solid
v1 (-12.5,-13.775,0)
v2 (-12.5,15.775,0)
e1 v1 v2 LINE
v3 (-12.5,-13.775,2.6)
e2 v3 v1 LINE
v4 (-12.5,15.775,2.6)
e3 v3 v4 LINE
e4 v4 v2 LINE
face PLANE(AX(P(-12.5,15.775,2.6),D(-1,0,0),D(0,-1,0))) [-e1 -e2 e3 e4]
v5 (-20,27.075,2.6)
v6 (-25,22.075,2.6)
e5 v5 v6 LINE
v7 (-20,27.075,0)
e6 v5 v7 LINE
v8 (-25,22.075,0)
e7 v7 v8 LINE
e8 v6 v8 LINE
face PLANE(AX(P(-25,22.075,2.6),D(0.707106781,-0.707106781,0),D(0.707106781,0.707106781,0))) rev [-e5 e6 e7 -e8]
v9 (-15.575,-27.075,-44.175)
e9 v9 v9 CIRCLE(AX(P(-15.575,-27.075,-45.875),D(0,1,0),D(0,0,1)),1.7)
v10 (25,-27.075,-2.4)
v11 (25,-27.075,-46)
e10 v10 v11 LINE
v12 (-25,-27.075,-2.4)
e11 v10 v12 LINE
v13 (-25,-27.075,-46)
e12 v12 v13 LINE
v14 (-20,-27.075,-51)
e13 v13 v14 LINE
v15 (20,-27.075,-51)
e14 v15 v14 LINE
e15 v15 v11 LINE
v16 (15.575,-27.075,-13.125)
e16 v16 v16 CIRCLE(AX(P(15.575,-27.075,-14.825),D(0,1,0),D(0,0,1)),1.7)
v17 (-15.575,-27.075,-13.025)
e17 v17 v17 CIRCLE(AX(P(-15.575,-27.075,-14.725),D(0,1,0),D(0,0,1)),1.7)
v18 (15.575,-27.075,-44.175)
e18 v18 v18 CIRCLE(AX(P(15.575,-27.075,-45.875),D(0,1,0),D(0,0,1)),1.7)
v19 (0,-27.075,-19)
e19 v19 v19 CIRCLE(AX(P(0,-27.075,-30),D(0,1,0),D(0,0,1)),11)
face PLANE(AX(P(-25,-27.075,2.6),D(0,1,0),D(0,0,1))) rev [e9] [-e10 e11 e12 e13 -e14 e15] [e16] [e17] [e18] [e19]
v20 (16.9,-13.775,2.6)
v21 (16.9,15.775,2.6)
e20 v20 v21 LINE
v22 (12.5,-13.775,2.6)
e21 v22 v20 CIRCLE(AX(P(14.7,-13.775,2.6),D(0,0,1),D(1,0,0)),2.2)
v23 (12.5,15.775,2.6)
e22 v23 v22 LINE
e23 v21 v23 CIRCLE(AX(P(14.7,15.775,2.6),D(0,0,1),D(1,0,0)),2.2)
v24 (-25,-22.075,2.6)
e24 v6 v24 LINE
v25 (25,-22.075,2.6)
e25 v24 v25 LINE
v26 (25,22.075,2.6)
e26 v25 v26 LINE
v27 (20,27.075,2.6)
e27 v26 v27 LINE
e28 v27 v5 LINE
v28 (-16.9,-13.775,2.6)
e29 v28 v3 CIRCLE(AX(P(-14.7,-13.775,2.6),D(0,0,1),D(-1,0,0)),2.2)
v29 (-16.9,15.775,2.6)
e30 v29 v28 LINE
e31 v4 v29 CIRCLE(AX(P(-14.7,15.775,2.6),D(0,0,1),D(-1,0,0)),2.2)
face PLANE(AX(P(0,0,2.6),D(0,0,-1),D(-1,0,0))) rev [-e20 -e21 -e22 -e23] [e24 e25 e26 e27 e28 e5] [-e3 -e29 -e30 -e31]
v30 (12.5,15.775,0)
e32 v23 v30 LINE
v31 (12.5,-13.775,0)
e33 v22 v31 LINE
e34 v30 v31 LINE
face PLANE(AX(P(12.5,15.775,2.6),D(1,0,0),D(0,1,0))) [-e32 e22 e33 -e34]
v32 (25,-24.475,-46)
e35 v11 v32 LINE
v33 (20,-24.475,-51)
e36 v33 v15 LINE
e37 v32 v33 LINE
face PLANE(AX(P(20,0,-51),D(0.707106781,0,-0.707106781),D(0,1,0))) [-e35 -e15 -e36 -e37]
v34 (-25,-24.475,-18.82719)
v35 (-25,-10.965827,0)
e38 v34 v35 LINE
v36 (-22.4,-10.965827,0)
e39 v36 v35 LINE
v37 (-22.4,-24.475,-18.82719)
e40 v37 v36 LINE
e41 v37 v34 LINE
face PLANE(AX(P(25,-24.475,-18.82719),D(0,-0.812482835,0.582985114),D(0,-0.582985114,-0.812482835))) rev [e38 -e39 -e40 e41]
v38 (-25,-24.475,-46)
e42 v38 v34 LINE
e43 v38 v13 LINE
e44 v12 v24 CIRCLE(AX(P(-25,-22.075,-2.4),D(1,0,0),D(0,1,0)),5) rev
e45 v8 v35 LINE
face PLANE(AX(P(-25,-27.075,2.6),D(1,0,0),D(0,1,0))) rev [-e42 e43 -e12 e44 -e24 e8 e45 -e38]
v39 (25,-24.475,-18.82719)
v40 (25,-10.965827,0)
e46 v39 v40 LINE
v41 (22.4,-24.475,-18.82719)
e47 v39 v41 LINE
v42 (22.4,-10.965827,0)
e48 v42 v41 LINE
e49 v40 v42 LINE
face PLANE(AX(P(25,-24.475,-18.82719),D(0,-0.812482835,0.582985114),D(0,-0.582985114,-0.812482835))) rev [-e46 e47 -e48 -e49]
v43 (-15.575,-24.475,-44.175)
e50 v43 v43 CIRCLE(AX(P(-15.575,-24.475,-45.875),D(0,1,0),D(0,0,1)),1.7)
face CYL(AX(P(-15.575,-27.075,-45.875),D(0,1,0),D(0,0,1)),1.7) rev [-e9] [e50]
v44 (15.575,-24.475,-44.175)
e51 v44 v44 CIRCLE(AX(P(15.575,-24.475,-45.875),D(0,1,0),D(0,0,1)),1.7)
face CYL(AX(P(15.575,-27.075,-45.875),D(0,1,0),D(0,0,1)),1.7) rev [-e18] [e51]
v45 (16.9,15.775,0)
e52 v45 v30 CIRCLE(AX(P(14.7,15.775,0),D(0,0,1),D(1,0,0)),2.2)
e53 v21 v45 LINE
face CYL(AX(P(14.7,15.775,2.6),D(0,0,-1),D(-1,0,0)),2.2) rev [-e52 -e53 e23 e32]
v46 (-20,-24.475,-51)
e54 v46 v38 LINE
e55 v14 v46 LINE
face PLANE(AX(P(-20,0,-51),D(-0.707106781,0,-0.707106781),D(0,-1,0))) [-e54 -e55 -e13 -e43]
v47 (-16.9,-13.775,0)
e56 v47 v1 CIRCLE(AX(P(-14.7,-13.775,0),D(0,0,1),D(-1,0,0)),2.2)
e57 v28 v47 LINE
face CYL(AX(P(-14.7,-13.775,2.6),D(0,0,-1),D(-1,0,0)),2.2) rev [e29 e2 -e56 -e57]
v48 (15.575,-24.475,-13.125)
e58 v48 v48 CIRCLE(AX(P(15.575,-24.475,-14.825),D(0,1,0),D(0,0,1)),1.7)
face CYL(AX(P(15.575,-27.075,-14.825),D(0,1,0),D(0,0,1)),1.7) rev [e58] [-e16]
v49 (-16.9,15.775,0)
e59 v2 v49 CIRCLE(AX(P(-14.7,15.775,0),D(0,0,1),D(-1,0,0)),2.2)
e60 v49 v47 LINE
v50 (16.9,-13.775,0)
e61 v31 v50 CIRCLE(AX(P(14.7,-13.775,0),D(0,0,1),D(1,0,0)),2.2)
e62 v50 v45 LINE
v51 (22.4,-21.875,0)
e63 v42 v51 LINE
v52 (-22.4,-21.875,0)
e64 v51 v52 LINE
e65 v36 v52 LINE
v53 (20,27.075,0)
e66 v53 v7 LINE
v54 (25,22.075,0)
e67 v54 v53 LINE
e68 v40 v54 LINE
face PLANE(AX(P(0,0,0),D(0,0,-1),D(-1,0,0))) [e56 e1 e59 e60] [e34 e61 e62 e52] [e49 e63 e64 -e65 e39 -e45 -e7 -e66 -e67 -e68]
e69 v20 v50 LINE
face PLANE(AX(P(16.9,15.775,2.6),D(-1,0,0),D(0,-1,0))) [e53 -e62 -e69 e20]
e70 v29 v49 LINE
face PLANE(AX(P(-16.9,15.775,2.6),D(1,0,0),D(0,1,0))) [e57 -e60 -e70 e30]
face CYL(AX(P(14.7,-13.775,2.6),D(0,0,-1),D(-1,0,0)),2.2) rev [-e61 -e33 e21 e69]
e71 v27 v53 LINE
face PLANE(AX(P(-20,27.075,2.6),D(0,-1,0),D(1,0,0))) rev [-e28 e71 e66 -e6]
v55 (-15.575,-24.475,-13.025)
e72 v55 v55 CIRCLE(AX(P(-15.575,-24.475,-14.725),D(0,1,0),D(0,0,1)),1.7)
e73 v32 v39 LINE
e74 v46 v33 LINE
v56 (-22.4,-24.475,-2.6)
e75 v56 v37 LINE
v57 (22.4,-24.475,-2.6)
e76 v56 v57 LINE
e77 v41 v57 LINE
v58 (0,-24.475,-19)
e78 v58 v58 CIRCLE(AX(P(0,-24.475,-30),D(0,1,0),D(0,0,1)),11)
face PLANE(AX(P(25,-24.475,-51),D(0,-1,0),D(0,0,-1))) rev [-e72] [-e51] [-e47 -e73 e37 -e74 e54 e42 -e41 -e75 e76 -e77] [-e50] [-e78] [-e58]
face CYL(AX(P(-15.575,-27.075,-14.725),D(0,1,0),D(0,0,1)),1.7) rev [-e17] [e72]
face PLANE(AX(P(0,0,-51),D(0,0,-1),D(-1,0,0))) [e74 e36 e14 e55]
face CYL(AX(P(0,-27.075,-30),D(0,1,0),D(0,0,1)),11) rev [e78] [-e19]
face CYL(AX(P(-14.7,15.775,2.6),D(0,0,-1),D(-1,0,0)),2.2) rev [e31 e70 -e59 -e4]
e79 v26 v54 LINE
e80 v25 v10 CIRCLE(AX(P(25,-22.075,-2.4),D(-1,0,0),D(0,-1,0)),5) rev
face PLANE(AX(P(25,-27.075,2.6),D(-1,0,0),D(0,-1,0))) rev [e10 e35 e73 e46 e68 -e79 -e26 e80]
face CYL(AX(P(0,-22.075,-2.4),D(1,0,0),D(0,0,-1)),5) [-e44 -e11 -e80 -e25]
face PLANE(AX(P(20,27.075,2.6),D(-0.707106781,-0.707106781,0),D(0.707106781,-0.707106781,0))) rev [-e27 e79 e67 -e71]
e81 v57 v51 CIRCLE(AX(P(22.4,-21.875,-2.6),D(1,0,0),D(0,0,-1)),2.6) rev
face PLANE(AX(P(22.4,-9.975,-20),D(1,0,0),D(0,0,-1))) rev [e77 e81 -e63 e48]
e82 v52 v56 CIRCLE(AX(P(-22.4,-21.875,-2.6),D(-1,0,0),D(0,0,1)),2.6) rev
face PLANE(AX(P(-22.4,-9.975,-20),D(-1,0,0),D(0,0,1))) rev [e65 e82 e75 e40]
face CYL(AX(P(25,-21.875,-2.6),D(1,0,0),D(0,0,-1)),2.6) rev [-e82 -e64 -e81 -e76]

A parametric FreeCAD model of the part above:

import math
import FreeCAD as App
import Part
import Sketcher

V = App.Vector
Q = App.Units.Quantity


def edges_at(feature, points):
    """Names of the edges that pass closest to the given points."""
    edges = feature.Shape.Edges
    near = lambda p: min(range(len(edges)), key=lambda i: edges[i].distToShape(Part.Vertex(*p))[0])
    return sorted({f"Edge{near(p) + 1}" for p in points})


def add_polygon(sketch, points):
    """Adds a closed chain of lines whose ends are joined by coincident constraints."""
    first, n = sketch.GeometryCount, len(points)
    for a, b in zip(points, points[1:] + points[:1]):
        sketch.addGeometry(Part.LineSegment(App.Vector(*a, 0), App.Vector(*b, 0)), False)
    for i in range(n):
        sketch.addConstraint(Sketcher.Constraint("Coincident", first + i, 2, first + (i + 1) % n, 1))

doc = App.newDocument("Part")
body = doc.addObject("PartDesign::Body", "Body")

sketch1 = doc.addObject("Sketcher::SketchObject", "Sketch")
body.addObject(sketch1)
sketch1.AttachmentSupport = (doc.XY_Plane, [""])
sketch1.MapMode = "FlatFace"
add_polygon(sketch1, [(-25, -27.075), (25, -27.075), (25, 22.075), (20, 27.075), (-20, 27.075), (-25, 22.075)])
sketch1.addGeometry(Part.LineSegment(V(-16.9, -13.775, 0), V(-16.9, 15.775, 0)), False)
sketch1.addGeometry(Part.ArcOfCircle(Part.Circle(V(-14.7, 15.775, 0), V(0, 0, 1), 2.2), math.radians(0), math.radians(180)), False)
sketch1.addGeometry(Part.LineSegment(V(-12.5, 15.775, 0), V(-12.5, -13.775, 0)), False)
sketch1.addGeometry(Part.ArcOfCircle(Part.Circle(V(-14.7, -13.775, 0), V(0, 0, 1), 2.2), math.radians(180), math.radians(360)), False)
sketch1.addGeometry(Part.ArcOfCircle(Part.Circle(V(14.7, 15.775, 0), V(0, 0, 1), 2.2), math.radians(0), math.radians(180)), False)
sketch1.addGeometry(Part.LineSegment(V(16.9, 15.775, 0), V(16.9, -13.775, 0)), False)
sketch1.addGeometry(Part.ArcOfCircle(Part.Circle(V(14.7, -13.775, 0), V(0, 0, 1), 2.2), math.radians(180), math.radians(360)), False)
sketch1.addGeometry(Part.LineSegment(V(12.5, -13.775, 0), V(12.5, 15.775, 0)), False)
sketch1.addConstraint([
    Sketcher.Constraint("Tangent", 6, 2, 7, 2),
    Sketcher.Constraint("Tangent", 7, 1, 8, 1),
    Sketcher.Constraint("Tangent", 8, 2, 9, 2),
    Sketcher.Constraint("Tangent", 9, 1, 6, 1),
    Sketcher.Constraint("Tangent", 10, 1, 11, 1),
    Sketcher.Constraint("Tangent", 11, 2, 12, 2),
    Sketcher.Constraint("Tangent", 12, 1, 13, 1),
    Sketcher.Constraint("Tangent", 13, 2, 10, 2),
    Sketcher.Constraint("Horizontal", 0),
    Sketcher.Constraint("Vertical", 1),
    Sketcher.Constraint("Horizontal", 3),
    Sketcher.Constraint("Vertical", 5),
    Sketcher.Constraint("Vertical", 6),
    Sketcher.Constraint("Vertical", 8),
    Sketcher.Constraint("Vertical", 11),
    Sketcher.Constraint("Vertical", 13),
    Sketcher.Constraint("Equal", 9, 10),
    Sketcher.Constraint("Symmetric", 7, 3, 10, 3, -2),
    Sketcher.Constraint("Symmetric", 1, 2, 4, 2, -2),
    Sketcher.Constraint("Perpendicular", 2, 4),
    Sketcher.Constraint("Horizontal", 9, 3, 12, 3),
    Sketcher.Constraint("Equal", 2, 4),
    Sketcher.Constraint("Radius", 7, Q("2.2 mm")),
    Sketcher.Constraint("DistanceX", 0, 1, 0, 2, Q("50 mm")),
    Sketcher.Constraint("DistanceX", 3, 2, 3, 1, Q("40 mm")),
    Sketcher.Constraint("DistanceX", 8, 2, 12, 1, Q("25 mm")),
    Sketcher.Constraint("DistanceY", 1, 1, 1, 2, Q("49.15 mm")),
    Sketcher.Constraint("DistanceY", 6, 1, 6, 2, Q("29.55 mm")),
    Sketcher.Constraint("DistanceY", 0, 2, 12, 3, Q("13.3 mm")),
    Sketcher.Constraint("DistanceY", -1, 1, 7, 3, Q("15.775 mm")),
])
pad1 = doc.addObject("PartDesign::Pad", "Pad")
body.addObject(pad1)
pad1.Profile = sketch1
pad1.Length = 2.6

sketch2 = doc.addObject("Sketcher::SketchObject", "Sketch001")
body.addObject(sketch2)
sketch2.AttachmentSupport = (doc.XY_Plane, [""])
sketch2.MapMode = "FlatFace"
add_polygon(sketch2, [(25, -24.475), (25, -27.075), (-25, -27.075), (-25, -24.475)])
sketch2.addConstraint([
    Sketcher.Constraint("Vertical", 0),
    Sketcher.Constraint("Horizontal", 1),
    Sketcher.Constraint("Vertical", 2),
    Sketcher.Constraint("Horizontal", 3),
    Sketcher.Constraint("DistanceX", 1, 2, 1, 1, Q("50 mm")),
    Sketcher.Constraint("DistanceY", 0, 2, 0, 1, Q("2.6 mm")),
    Sketcher.Constraint("DistanceX", -1, 1, 0, 2, Q("25 mm")),
    Sketcher.Constraint("DistanceY", 0, 2, -1, 1, Q("27.075 mm")),
])
pad2 = doc.addObject("PartDesign::Pad", "Pad001")
body.addObject(pad2)
pad2.Profile = sketch2
pad2.Length = 51
pad2.Reversed = True
doc.recompute()

fillet = doc.addObject("PartDesign::Fillet", "Fillet")
body.addObject(fillet)
fillet.Base = (pad2, edges_at(pad2, [(0, -27.075, 2.6)]))
fillet.Radius = 5

sketch3 = doc.addObject("Sketcher::SketchObject", "Sketch002")
body.addObject(sketch3)
sketch3.AttachmentSupport = (doc.XZ_Plane, [""])
sketch3.MapMode = "FlatFace"
sketch3.AttachmentOffset = App.Placement(V(0, 0, 24.475), App.Rotation())
sketch3.addGeometry([
    Part.Circle(V(0, -30, 0), V(0, 0, 1), 11),
    Part.Circle(V(-15.575, -45.875, 0), V(0, 0, 1), 1.7),
    Part.Circle(V(15.575, -45.875, 0), V(0, 0, 1), 1.7),
    Part.Circle(V(15.575, -14.825, 0), V(0, 0, 1), 1.7),
    Part.Circle(V(-15.575, -14.725, 0), V(0, 0, 1), 1.7),
], False)
sketch3.addConstraint([
    Sketcher.Constraint("Equal", 1, 2),
    Sketcher.Constraint("Equal", 2, 3),
    Sketcher.Constraint("Equal", 3, 4),
    Sketcher.Constraint("Symmetric", 1, 3, 2, 3, -2),
    Sketcher.Constraint("PointOnObject", 0, 3, -2),
    Sketcher.Constraint("Vertical", 2, 3, 3, 3),
    Sketcher.Constraint("Vertical", 1, 3, 4, 3),
    Sketcher.Constraint("Diameter", 0, Q("22 mm")),
    Sketcher.Constraint("Diameter", 1, Q("3.4 mm")),
    Sketcher.Constraint("DistanceY", 0, 3, -1, 1, Q("30 mm")),
    Sketcher.Constraint("DistanceY", 3, 3, 4, 3, Q("0.1 mm")),
    Sketcher.Constraint("DistanceX", 1, 3, 2, 3, Q("31.15 mm")),
    Sketcher.Constraint("DistanceY", 2, 3, 3, 3, Q("31.05 mm")),
    Sketcher.Constraint("DistanceY", 1, 3, -1, 1, Q("45.875 mm")),
])
pocket1 = doc.addObject("PartDesign::Pocket", "Pocket")
body.addObject(pocket1)
pocket1.Profile = sketch3
pocket1.Type = "ThroughAll"
pocket1.Reversed = True
doc.recompute()

chamfer = doc.addObject("PartDesign::Chamfer", "Chamfer")
body.addObject(chamfer)
chamfer.Base = (pocket1, edges_at(pocket1, [(25, -25.775, -51), (-25, -25.775, -51)]))
chamfer.Size = 5

sketch4 = doc.addObject("Sketcher::SketchObject", "Sketch003")
body.addObject(sketch4)
sketch4.AttachmentSupport = (doc.XZ_Plane, [""])
sketch4.MapMode = "FlatFace"
sketch4.AttachmentOffset = App.Placement(V(0, 0, 24.475), App.Rotation())
add_polygon(sketch4, [(-25, -20), (-25, 0), (-22.4, 0), (-22.4, -20)])
add_polygon(sketch4, [(22.4, -20), (22.4, 0), (25, 0), (25, -20)])
sketch4.addConstraint([
    Sketcher.Constraint("Vertical", 0),
    Sketcher.Constraint("Horizontal", 1),
    Sketcher.Constraint("Vertical", 2),
    Sketcher.Constraint("Horizontal", 3),
    Sketcher.Constraint("Vertical", 4),
    Sketcher.Constraint("Horizontal", 5),
    Sketcher.Constraint("Vertical", 6),
    Sketcher.Constraint("Horizontal", 7),
    Sketcher.Constraint("Symmetric", 1, 2, 4, 2, -1, 1),
    Sketcher.Constraint("Symmetric", 0, 2, 5, 2, -2),
    Sketcher.Constraint("Horizontal", 3, 2, 6, 2),
    Sketcher.Constraint("DistanceY", 0, 1, 0, 2, Q("20 mm")),
    Sketcher.Constraint("DistanceX", 1, 1, 1, 2, Q("2.6 mm")),
    Sketcher.Constraint("DistanceX", 0, 2, -1, 1, Q("25 mm")),
])
pad3 = doc.addObject("PartDesign::Pad", "Pad002")
body.addObject(pad3)
pad3.Profile = sketch4
pad3.Length = 14.5
pad3.Reversed = True

sketch5 = doc.addObject("Sketcher::SketchObject", "Sketch004")
body.addObject(sketch5)
sketch5.AttachmentSupport = (doc.YZ_Plane, [""])
sketch5.MapMode = "FlatFace"
sketch5.AttachmentOffset = App.Placement(V(0, 0, -25), App.Rotation())
add_polygon(sketch5, [(-24.475, -20), (-24.475, -18.82719), (-10.965827, 0), (-9.975, 0), (-9.975, -20)])
sketch5.addConstraint([
    Sketcher.Constraint("Vertical", 0),
    Sketcher.Constraint("Horizontal", 2),
    Sketcher.Constraint("Vertical", 3),
    Sketcher.Constraint("Horizontal", 4),
    Sketcher.Constraint("PointOnObject", 1, 2, -1),
    Sketcher.Constraint("DistanceY", 3, 2, 3, 1, Q("20 mm")),
    Sketcher.Constraint("DistanceX", 4, 2, 4, 1, Q("14.5 mm")),
    Sketcher.Constraint("DistanceX", 0, 2, -1, 1, Q("24.475 mm")),
    Sketcher.Constraint("DistanceY", 0, 1, 0, 2, Q("1.17281 mm")),
    Sketcher.Constraint("DistanceX", 2, 1, 2, 2, Q("0.990827 mm")),
])
pocket2 = doc.addObject("PartDesign::Pocket", "Pocket001")
body.addObject(pocket2)
pocket2.Profile = sketch5
pocket2.Type = "ThroughAll"
pocket2.Reversed = True
doc.recompute()

fillet2 = doc.addObject("PartDesign::Fillet", "Fillet001")
body.addObject(fillet2)
fillet2.Base = (pocket2, edges_at(pocket2, [(0, -24.475, 0)]))
fillet2.Radius = 2.6

doc.recompute()
